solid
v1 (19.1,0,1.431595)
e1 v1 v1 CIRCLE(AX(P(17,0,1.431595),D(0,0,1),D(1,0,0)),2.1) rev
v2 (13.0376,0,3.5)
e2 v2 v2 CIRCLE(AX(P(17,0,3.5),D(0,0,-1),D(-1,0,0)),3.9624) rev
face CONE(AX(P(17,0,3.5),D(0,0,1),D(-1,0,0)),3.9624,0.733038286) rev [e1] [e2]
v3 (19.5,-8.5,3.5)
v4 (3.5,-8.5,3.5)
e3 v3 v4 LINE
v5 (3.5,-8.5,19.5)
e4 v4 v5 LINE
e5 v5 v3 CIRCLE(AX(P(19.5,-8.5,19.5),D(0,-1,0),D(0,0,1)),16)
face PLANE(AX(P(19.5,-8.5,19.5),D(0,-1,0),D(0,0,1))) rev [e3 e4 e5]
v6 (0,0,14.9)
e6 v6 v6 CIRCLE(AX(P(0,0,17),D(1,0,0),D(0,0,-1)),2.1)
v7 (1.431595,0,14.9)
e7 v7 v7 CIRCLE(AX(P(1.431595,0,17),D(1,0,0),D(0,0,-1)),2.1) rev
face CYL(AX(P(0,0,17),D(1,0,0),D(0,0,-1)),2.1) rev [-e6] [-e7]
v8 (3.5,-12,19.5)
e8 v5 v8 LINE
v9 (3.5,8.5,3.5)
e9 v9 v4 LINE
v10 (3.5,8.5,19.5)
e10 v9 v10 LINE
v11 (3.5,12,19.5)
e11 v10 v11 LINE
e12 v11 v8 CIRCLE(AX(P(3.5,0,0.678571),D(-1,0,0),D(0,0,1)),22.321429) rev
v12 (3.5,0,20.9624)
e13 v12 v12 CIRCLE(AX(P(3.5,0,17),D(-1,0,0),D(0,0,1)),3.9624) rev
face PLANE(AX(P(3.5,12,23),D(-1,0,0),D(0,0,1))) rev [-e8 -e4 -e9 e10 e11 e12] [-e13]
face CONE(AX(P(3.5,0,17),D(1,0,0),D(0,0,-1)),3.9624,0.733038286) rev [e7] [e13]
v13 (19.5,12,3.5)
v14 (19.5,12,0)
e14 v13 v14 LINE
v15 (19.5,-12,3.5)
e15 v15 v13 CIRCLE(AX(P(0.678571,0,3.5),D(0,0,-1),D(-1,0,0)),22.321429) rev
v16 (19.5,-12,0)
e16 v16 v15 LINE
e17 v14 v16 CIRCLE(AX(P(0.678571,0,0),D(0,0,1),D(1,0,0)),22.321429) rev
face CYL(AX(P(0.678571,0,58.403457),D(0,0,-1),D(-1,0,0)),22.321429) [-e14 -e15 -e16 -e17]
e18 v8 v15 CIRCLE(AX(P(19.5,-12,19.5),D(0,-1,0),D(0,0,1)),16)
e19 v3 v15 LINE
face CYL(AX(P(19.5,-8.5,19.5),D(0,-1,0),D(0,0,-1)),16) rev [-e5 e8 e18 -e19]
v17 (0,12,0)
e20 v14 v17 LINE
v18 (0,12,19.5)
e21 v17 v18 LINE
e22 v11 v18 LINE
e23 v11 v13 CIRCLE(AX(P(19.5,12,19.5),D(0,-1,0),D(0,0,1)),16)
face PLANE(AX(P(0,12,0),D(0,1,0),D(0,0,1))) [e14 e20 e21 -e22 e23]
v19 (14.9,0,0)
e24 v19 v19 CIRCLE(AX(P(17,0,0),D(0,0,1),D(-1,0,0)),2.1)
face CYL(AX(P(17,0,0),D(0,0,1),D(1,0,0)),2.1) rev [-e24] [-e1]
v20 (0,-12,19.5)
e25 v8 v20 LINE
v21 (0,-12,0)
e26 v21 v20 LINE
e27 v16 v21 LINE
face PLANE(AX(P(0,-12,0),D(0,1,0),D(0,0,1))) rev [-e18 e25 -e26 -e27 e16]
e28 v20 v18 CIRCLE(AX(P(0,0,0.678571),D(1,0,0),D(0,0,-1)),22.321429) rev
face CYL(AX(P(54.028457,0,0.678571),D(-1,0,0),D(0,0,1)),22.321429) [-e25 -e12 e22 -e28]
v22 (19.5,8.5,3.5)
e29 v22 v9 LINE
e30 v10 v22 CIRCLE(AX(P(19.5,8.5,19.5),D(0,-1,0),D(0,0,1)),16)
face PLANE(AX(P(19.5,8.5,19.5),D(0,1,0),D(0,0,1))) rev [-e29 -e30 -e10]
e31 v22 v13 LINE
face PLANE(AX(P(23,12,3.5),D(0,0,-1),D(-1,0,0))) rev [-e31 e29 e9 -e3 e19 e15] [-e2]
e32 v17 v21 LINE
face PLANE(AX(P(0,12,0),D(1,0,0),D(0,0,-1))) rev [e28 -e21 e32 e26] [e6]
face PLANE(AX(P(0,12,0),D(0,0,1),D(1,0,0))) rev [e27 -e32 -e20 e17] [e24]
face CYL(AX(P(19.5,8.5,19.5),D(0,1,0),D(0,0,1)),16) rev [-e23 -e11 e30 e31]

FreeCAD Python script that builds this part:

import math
import FreeCAD as App
import Part
import Sketcher
from FreeCAD import Vector


def add_polygon(sketch, points):
    """Adds a closed chain of lines whose ends are joined by coincident constraints."""
    first, n = sketch.GeometryCount, len(points)
    for a, b in zip(points, points[1:] + points[:1]):
        sketch.addGeometry(Part.LineSegment(App.Vector(*a, 0), App.Vector(*b, 0)), False)
    for i in range(n):
        sketch.addConstraint(Sketcher.Constraint("Coincident", first + i, 2, first + (i + 1) % n, 1))

doc = App.newDocument("Part")
params = doc.addObject("Spreadsheet::Sheet", "Params")
for row, (alias, value) in enumerate([
    ("sketch1_width", "23 mm"),
    ("sketch1_width2", "3.5 mm"),
    ("pad1_length", "12 mm"),
    ("pad1_length2", "12 mm"),
    ("sketch2_radius", "16 mm"),
    ("pad2_length", "3.5 mm"),
    ("pocket1_length", "25 mm"),
    ("sketch4_diameter", "4.2 mm"),
    ("pocket2_length", "25 mm"),
    ("pocket3_length", "3.5 mm"),
    ("pocket3_taper", "-42 deg"),
    ("pocket4_length", "3.048 mm"),
    ("pocket4_taper", "-42 deg"),
], start=1):
    params.set(f"A{row}", alias)
    params.set(f"B{row}", "=" + value)
    params.setAlias(f"B{row}", alias)

body = doc.addObject("PartDesign::Body", "Body")

# Sketch on XZ plane
sketch1 = body.newObject("Sketcher::SketchObject", "Sketch")
sketch1.AttachmentSupport = (doc.getObject("XZ_Plane"), [""])
sketch1.MapMode = "FlatFace"
add_polygon(sketch1, [(0, 23), (3.5, 23), (3.5, 3.5), (23, 3.5), (23, 0), (0, 0)])  # lines 0-5
sketch1.addConstraint([
    Sketcher.Constraint("Horizontal", 0),
    Sketcher.Constraint("Vertical", 1),
    Sketcher.Constraint("Horizontal", 2),
    Sketcher.Constraint("Vertical", 3),
    Sketcher.Constraint("Horizontal", 4),
    Sketcher.Constraint("Vertical", 5),
    Sketcher.Constraint("Coincident", 4, 2, -1, 1),
    Sketcher.Constraint("Equal", 2, 1),
    Sketcher.Constraint("Equal", 0, 3),
    Sketcher.Constraint("DistanceX", 4, 2, 4, 1, 23.0),
    Sketcher.Constraint("DistanceX", 0, 1, 0, 2, 3.5),
])
sketch1.setExpression("Constraints[15]", "Params.sketch1_width")
sketch1.setExpression("Constraints[16]", "Params.sketch1_width2")
pad1 = body.newObject("PartDesign::Pad", "Pad")
pad1.Profile = sketch1
pad1.Type = "TwoLengths"
pad1.setExpression("Length", "Params.pad1_length")
pad1.setExpression("Length2", "Params.pad1_length2")
pad1.Reversed = True

# Sketch on XZ plane
sketch2 = body.newObject("Sketcher::SketchObject", "Sketch001")
sketch2.AttachmentSupport = (doc.getObject("XZ_Plane"), [""])
sketch2.MapMode = "FlatFace"
sketch2.AttachmentOffset = App.Placement(Vector(0, 0, -12), App.Rotation())
sketch2.addGeometry([
    Part.LineSegment(Vector(19.5, 3.5, 0), Vector(3.5, 3.5, 0)),
    Part.LineSegment(Vector(3.5, 3.5, 0), Vector(3.5, 19.5, 0)),
    Part.ArcOfCircle(Part.Circle(Vector(19.5, 19.5, 0), Vector(0, 0, 1), 16), math.radians(180), math.radians(270)),
], False)
sketch2.addConstraint([
    Sketcher.Constraint("Coincident", 0, 2, 1, 1),
    Sketcher.Constraint("Tangent", 1, 2, 2, 1),
    Sketcher.Constraint("Tangent", 2, 2, 0, 1),
    Sketcher.Constraint("Horizontal", 0),
    Sketcher.Constraint("Vertical", 1),
    Sketcher.Constraint("Radius", 2, 16.0),
    Sketcher.Constraint("DistanceX", -1, 1, 2, 3, 19.5),
    Sketcher.Constraint("DistanceY", -1, 1, 2, 3, 19.5),
])
sketch2.setExpression("Constraints[5]", "Params.sketch2_radius")
pad2 = body.newObject("PartDesign::Pad", "Pad001")
pad2.Profile = sketch2
pad2.setExpression("Length", "Params.pad2_length")
doc.recompute()

mirrored = body.newObject("PartDesign::Mirrored", "Mirrored")
mirrored.Originals = [pad2]
mirrored.MirrorPlane = (doc.getObject("XZ_Plane"), [""])
body.Tip = mirrored

# Sketch on YZ plane
sketch3 = body.newObject("Sketcher::SketchObject", "Sketch002")
sketch3.AttachmentSupport = (doc.getObject("YZ_Plane"), [""])
sketch3.MapMode = "FlatFace"
sketch3.AttachmentOffset = App.Placement(Vector(0, 0, -1), App.Rotation())
sketch3.addGeometry([
    Part.LineSegment(Vector(12, 19.5, 0), Vector(72.58104, -19.124724, 0)),  # 0
    Part.LineSegment(Vector(72.58104, -19.124724, 0), Vector(72.58104, 124.568445, 0)),  # 1
    Part.LineSegment(Vector(72.58104, 124.568445, 0), Vector(-72.58104, 124.568445, 0)),  # 2
    Part.LineSegment(Vector(-72.58104, 124.568445, 0), Vector(-72.58104, -19.124724, 0)),  # 3
    Part.LineSegment(Vector(-72.58104, -19.124724, 0), Vector(-12, 19.5, 0)),  # 4
    Part.ArcOfCircle(Part.Circle(Vector(0, 0.678571, 0), Vector(0, 0, 1), 22.321429), math.radians(57.479591), math.radians(122.520409)),  # 5
], False)
sketch3.addConstraint([
    Sketcher.Constraint("Coincident", 0, 2, 1, 1),
    Sketcher.Constraint("Coincident", 1, 2, 2, 1),
    Sketcher.Constraint("Coincident", 2, 2, 3, 1),
    Sketcher.Constraint("Coincident", 3, 2, 4, 1),
    Sketcher.Constraint("Tangent", 4, 2, 5, 2),
    Sketcher.Constraint("Tangent", 5, 1, 0, 1),
    Sketcher.Constraint("Vertical", 1),
    Sketcher.Constraint("Horizontal", 2),
    Sketcher.Constraint("Vertical", 3),
    Sketcher.Constraint("Symmetric", 0, 2, 3, 2, -2),
    Sketcher.Constraint("PointOnObject", 5, 3, -2),
    Sketcher.Constraint("DistanceX", 4, 2, -1, 1, 12.0),
    Sketcher.Constraint("DistanceY", -1, 1, 4, 2, 19.5),
    Sketcher.Constraint("Radius", 5, 22.321429),
    Sketcher.Constraint("DistanceX", 2, 2, 2, 1, 145.16208),
    Sketcher.Constraint("DistanceY", 1, 1, 1, 2, 143.693169),
])
pocket1 = body.newObject("PartDesign::Pocket", "Pocket")
pocket1.Profile = sketch3
pocket1.setExpression("Length", "Params.pocket1_length")
pocket1.Reversed = True

# Sketch on YZ plane
sketch4 = body.newObject("Sketcher::SketchObject", "Sketch003")
sketch4.AttachmentSupport = (doc.getObject("YZ_Plane"), [""])
sketch4.MapMode = "FlatFace"
sketch4.AttachmentOffset = App.Placement(Vector(0, 0, -1), App.Rotation())
sketch4.addGeometry(Part.Circle(Vector(0, 17, 0), Vector(0, 0, 1), 2.1), False)
sketch4.addConstraint([
    Sketcher.Constraint("PointOnObject", 0, 3, -2),
    Sketcher.Constraint("Diameter", 0, 4.2),
    Sketcher.Constraint("DistanceY", -1, 1, 0, 3, 17.0),
])
sketch4.setExpression("Constraints[1]", "Params.sketch4_diameter")
pocket2 = body.newObject("PartDesign::Pocket", "Pocket001")
pocket2.Profile = sketch4
pocket2.setExpression("Length", "Params.pocket2_length")
pocket2.Reversed = True

# Sketch on YZ plane
sketch5 = body.newObject("Sketcher::SketchObject", "Sketch004")
sketch5.AttachmentSupport = (doc.getObject("YZ_Plane"), [""])
sketch5.MapMode = "FlatFace"
sketch5.AttachmentOffset = App.Placement(Vector(0, 0, 3.5), App.Rotation())
sketch5.addGeometry(Part.Circle(Vector(0, 17, 0), Vector(0, 0, 1), 3.9624), False)
sketch5.addConstraint([
    Sketcher.Constraint("PointOnObject", 0, 3, -2),
    Sketcher.Constraint("DistanceY", -1, 1, 0, 3, 17.0),
    Sketcher.Constraint("Diameter", 0, 7.9248),
])
pocket3 = body.newObject("PartDesign::Pocket", "Pocket002")
pocket3.Profile = sketch5
pocket3.setExpression("Length", "Params.pocket3_length")
pocket3.setExpression("TaperAngle", "Params.pocket3_taper")

# Sketch on YZ plane
sketch6 = body.newObject("Sketcher::SketchObject", "Sketch005")
sketch6.AttachmentSupport = (doc.getObject("YZ_Plane"), [""])
sketch6.MapMode = "FlatFace"
sketch6.AttachmentOffset = App.Placement(Vector(0, 0, 3.5), App.Rotation())
sketch6.addGeometry(Part.Circle(Vector(0, 17, 0), Vector(0, 0, 1), 3.9624), False)
sketch6.addConstraint([
    Sketcher.Constraint("PointOnObject", 0, 3, -2),
    Sketcher.Constraint("DistanceY", -1, 1, 0, 3, 17.0),
    Sketcher.Constraint("Diameter", 0, 7.9248),
])
pocket4 = body.newObject("PartDesign::Pocket", "Pocket003")
pocket4.Profile = sketch6
pocket4.setExpression("Length", "Params.pocket4_length")
pocket4.Reversed = True
pocket4.setExpression("TaperAngle", "Params.pocket4_taper")
doc.recompute()

datumline = body.newObject("PartDesign::Line", "DatumLine")
datumline.Placement = App.Placement(Vector(0, 0, 0), App.Rotation(Vector(0, 0, 1), Vector(0.707106781, 0, 0.707106781)))
polarpattern = body.newObject("PartDesign::PolarPattern", "PolarPattern")
polarpattern.Originals = [pocket1, pocket2, pocket3]
polarpattern.Axis = (datumline, [""])
polarpattern.Angle = 360
polarpattern.Occurrences = 2
body.Tip = polarpattern

doc.recompute()
